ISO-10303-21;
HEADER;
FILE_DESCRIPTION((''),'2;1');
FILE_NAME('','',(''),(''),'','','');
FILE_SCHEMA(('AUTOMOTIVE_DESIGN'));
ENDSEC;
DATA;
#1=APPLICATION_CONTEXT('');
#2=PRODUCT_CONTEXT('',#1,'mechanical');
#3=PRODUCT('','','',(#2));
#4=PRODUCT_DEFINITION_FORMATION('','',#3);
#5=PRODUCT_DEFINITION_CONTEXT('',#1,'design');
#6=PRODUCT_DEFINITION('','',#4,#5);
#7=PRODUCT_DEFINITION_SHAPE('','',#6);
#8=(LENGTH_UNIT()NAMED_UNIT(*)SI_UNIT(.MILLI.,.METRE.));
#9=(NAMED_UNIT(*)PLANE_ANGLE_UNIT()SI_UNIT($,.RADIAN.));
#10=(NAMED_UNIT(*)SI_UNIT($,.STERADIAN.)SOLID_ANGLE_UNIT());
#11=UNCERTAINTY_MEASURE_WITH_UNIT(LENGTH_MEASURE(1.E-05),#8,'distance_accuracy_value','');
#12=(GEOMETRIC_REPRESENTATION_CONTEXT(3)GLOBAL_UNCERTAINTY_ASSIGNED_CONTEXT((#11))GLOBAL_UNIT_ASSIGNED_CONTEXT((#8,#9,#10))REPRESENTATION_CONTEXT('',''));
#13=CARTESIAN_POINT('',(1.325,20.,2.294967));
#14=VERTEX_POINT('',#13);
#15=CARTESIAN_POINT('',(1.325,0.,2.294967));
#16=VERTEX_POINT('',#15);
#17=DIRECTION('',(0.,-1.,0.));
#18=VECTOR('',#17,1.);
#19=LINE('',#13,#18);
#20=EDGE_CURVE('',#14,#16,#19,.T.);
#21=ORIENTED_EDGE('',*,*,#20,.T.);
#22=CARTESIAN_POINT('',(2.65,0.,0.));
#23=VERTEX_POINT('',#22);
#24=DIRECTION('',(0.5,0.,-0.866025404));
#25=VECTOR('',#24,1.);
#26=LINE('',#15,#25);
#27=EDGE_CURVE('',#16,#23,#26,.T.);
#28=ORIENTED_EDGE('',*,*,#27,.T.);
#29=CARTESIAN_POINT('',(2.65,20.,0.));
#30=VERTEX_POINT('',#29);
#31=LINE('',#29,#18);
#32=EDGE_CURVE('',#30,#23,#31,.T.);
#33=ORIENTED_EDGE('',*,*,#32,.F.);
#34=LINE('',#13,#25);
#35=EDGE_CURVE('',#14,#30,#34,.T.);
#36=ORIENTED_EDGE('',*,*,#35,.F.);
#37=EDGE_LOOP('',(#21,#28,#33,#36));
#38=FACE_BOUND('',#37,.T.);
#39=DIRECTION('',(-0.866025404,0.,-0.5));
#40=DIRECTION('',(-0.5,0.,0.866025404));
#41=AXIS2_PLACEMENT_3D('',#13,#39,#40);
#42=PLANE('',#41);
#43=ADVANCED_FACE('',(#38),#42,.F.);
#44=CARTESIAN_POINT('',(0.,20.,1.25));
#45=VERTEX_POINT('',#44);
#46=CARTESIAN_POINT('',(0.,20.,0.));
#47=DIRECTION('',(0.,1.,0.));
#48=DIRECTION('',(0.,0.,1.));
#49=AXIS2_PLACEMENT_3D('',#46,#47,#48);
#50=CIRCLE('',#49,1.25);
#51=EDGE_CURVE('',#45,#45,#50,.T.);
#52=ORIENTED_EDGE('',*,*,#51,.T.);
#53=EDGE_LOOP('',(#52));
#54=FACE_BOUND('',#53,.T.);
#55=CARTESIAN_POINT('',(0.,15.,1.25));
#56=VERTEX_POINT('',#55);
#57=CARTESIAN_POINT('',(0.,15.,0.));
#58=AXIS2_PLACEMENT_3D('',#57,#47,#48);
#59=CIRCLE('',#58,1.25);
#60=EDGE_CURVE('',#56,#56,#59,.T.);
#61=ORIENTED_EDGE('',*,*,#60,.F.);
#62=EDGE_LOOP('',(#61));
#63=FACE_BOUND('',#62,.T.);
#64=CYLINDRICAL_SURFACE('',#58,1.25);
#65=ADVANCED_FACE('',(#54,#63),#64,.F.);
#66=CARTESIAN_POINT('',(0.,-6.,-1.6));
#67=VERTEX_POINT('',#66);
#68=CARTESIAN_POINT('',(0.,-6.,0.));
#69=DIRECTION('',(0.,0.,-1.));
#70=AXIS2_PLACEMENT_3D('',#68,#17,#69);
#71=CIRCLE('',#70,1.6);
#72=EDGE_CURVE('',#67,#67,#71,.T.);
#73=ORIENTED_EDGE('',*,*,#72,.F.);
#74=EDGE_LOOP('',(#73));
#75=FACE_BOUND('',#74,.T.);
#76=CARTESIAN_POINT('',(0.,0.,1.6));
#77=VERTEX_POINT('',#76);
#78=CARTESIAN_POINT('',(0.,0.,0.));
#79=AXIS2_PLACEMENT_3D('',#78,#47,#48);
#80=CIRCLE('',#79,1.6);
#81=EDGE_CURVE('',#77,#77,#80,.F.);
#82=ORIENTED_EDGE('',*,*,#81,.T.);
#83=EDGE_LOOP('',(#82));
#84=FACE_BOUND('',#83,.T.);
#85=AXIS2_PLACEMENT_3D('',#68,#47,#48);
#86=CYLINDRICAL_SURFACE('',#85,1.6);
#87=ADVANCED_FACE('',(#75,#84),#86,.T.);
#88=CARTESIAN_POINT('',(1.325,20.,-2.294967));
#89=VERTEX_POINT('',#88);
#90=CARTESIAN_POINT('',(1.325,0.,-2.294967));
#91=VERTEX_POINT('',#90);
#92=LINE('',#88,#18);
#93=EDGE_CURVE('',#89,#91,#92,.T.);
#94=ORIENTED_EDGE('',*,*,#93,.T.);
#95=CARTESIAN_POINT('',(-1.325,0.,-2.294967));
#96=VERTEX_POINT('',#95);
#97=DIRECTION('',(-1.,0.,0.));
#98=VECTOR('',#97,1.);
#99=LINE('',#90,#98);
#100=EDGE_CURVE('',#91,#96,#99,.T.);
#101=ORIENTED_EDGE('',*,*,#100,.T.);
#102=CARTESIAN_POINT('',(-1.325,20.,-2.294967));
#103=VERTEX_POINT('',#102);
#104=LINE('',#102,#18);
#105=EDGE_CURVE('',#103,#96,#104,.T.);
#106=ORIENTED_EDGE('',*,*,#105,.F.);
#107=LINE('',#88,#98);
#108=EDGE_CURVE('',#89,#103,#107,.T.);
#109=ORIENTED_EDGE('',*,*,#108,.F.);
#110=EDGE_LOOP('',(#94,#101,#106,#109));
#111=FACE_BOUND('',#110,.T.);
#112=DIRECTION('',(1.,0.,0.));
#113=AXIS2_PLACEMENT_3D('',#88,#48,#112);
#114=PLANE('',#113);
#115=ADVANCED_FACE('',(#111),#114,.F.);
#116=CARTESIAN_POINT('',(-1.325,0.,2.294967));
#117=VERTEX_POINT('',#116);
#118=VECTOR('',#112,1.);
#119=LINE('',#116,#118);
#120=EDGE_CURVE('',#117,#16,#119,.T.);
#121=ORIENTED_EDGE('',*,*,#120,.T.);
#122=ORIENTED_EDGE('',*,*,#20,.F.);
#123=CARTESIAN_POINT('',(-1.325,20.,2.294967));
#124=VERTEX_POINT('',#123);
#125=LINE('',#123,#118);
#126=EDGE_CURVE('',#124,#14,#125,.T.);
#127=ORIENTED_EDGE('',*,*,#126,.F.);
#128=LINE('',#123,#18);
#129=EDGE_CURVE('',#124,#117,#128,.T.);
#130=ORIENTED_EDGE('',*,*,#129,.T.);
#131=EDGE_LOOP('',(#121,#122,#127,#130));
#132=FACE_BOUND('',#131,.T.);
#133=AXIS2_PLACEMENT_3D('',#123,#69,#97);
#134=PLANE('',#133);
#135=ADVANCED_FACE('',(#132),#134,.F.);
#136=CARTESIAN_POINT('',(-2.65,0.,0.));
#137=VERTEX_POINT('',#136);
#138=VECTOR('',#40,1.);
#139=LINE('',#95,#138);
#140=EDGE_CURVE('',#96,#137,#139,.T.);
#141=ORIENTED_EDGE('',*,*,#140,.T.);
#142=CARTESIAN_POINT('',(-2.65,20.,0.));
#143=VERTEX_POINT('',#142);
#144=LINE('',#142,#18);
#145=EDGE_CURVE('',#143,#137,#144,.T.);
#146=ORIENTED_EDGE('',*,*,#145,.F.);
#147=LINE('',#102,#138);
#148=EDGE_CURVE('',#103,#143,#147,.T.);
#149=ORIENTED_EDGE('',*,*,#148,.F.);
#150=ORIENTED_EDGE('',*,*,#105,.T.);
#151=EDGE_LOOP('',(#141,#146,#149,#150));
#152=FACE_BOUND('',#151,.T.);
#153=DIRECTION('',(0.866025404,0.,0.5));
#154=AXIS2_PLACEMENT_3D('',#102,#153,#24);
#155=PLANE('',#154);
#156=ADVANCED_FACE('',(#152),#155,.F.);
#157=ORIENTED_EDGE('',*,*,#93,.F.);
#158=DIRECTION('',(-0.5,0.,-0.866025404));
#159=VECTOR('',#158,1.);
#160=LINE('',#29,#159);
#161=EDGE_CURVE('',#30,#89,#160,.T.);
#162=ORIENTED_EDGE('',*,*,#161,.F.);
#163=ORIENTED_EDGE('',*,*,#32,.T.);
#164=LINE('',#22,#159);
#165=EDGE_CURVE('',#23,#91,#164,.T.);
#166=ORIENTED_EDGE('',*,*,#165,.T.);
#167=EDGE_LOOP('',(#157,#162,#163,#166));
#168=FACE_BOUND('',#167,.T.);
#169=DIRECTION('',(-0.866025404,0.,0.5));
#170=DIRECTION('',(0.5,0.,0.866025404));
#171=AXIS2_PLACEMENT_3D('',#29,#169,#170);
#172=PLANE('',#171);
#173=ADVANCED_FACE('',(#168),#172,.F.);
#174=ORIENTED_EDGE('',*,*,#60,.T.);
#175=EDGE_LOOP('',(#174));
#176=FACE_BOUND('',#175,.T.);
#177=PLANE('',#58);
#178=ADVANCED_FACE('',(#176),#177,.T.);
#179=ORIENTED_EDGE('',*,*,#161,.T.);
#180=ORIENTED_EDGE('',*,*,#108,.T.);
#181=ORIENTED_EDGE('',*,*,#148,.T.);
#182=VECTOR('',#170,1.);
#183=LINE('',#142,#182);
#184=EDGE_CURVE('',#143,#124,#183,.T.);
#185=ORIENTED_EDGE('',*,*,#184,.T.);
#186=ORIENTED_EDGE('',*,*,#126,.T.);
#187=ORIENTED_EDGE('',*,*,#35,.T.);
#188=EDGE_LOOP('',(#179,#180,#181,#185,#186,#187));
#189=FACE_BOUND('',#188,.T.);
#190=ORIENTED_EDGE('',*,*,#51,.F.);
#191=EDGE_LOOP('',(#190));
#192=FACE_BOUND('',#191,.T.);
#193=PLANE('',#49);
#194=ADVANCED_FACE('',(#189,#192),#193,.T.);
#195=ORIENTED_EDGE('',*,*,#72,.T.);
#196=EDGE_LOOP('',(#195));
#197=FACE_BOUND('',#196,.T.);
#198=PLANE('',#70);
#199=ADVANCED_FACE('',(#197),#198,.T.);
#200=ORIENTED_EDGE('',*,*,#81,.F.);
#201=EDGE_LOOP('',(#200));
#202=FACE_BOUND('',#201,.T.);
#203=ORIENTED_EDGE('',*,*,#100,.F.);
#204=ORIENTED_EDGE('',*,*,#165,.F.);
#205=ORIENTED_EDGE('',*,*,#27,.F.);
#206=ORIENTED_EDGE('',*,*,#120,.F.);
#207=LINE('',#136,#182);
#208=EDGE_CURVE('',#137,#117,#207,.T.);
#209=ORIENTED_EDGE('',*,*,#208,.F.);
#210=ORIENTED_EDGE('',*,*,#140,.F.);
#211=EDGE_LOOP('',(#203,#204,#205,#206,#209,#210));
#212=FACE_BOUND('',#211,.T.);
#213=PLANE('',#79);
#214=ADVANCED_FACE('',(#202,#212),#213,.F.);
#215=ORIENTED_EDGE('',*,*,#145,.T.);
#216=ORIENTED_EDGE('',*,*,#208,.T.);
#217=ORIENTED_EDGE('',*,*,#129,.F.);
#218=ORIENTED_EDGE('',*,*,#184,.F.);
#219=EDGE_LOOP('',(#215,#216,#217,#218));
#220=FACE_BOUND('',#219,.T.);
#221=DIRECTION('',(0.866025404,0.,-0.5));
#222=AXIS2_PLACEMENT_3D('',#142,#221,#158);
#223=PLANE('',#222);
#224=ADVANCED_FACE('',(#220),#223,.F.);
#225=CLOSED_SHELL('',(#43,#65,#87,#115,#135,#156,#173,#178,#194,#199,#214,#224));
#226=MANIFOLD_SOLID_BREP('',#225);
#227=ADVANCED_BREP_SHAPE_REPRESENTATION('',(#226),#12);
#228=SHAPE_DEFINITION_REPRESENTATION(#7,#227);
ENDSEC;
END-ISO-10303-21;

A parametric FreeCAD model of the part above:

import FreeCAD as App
import Part
import Sketcher
Q = App.Units.Quantity

doc = App.newDocument("Part")
params = doc.addObject("Spreadsheet::Sheet", "Params")
for row, (alias, value) in enumerate([
    ("sketch1_width", "2.65 mm"),
    ("pad1_length", "20 mm"),
    ("sketch2_diameter", "3.2 mm"),
    ("pad2_length", "6 mm"),
    ("sketch3_diameter", "2.5 mm"),
    ("pocket1_length", "5 mm"),
], start=1):
    params.set(f"A{row}", alias)
    params.set(f"B{row}", "=" + value)
    params.setAlias(f"B{row}", alias)

body = doc.addObject("PartDesign::Body", "Body")

# Sketch on XZ plane
sketch1 = body.newObject("Sketcher::SketchObject", "Sketch")
sketch1.AttachmentSupport = (doc.getObject("XZ_Plane"), [""])
sketch1.MapMode = "FlatFace"
sketch1.addGeometry(Part.LineSegment(App.Vector(1.3, 2.3, 0), App.Vector(2.6, 0, 0)), False)
sketch1.addGeometry(Part.LineSegment(App.Vector(2.6, 0, 0), App.Vector(1.3, -2.3, 0)), False)
sketch1.addGeometry(Part.LineSegment(App.Vector(1.3, -2.3, 0), App.Vector(-1.3, -2.3, 0)), False)
sketch1.addGeometry(Part.LineSegment(App.Vector(-1.3, -2.3, 0), App.Vector(-2.6, 0, 0)), False)
sketch1.addGeometry(Part.LineSegment(App.Vector(-2.6, 0, 0), App.Vector(-1.3, 2.3, 0)), False)
sketch1.addGeometry(Part.LineSegment(App.Vector(-1.3, 2.3, 0), App.Vector(1.3, 2.3, 0)), False)
sketch1.addConstraint(Sketcher.Constraint("Coincident", 0, 2, 1, 1))
sketch1.addConstraint(Sketcher.Constraint("Coincident", 1, 2, 2, 1))
sketch1.addConstraint(Sketcher.Constraint("Coincident", 2, 2, 3, 1))
sketch1.addConstraint(Sketcher.Constraint("Coincident", 3, 2, 4, 1))
sketch1.addConstraint(Sketcher.Constraint("Coincident", 4, 2, 5, 1))
sketch1.addConstraint(Sketcher.Constraint("Coincident", 5, 2, 0, 1))
sketch1.addConstraint(Sketcher.Constraint("Horizontal", 2))
sketch1.addConstraint(Sketcher.Constraint("Horizontal", 5))
sketch1.addConstraint(Sketcher.Constraint("Symmetric", 0, 2, 3, 2, -1, 1))
sketch1.addConstraint(Sketcher.Constraint("Symmetric", 1, 2, 4, 2, -1, 1))
sketch1.addConstraint(Sketcher.Constraint("PointOnObject", 0, 2, -1))
sketch1.addConstraint(Sketcher.Constraint("Parallel", 0, 3))
sketch1.addConstraint(Sketcher.Constraint("Vertical", 2, 2, 4, 2))
sketch1.addConstraint(Sketcher.Constraint("Angle", 0, Q("-60 deg")))
sketch1.addConstraint(Sketcher.Constraint("DistanceX", 2, 2, 2, 1, Q("2.65 mm")))
sketch1.addConstraint(Sketcher.Constraint("DistanceX", 3, 2, 0, 2, Q("5.3 mm")))
sketch1.setExpression("Constraints[14]", "Params.sketch1_width")
pad1 = body.newObject("PartDesign::Pad", "Pad")
pad1.Profile = sketch1
pad1.setExpression("Length", "Params.pad1_length")
pad1.Reversed = True

# Sketch on XZ plane
sketch2 = body.newObject("Sketcher::SketchObject", "Sketch001")
sketch2.AttachmentSupport = (doc.getObject("XZ_Plane"), [""])
sketch2.MapMode = "FlatFace"
sketch2.addGeometry(Part.Circle(App.Vector(0, 0, 0), App.Vector(0, 0, 1), 1.6), False)
sketch2.addConstraint(Sketcher.Constraint("Coincident", 0, 3, -1, 1))
sketch2.addConstraint(Sketcher.Constraint("Diameter", 0, Q("3.2 mm")))
sketch2.setExpression("Constraints[1]", "Params.sketch2_diameter")
pad2 = body.newObject("PartDesign::Pad", "Pad001")
pad2.Profile = sketch2
pad2.setExpression("Length", "Params.pad2_length")

# Sketch on XZ plane
sketch3 = body.newObject("Sketcher::SketchObject", "Sketch002")
sketch3.AttachmentSupport = (doc.getObject("XZ_Plane"), [""])
sketch3.MapMode = "FlatFace"
sketch3.AttachmentOffset = App.Placement(App.Vector(0, 0, -20), App.Rotation())
sketch3.addGeometry(Part.Circle(App.Vector(0, 0, 0), App.Vector(0, 0, 1), 1.2), False)
sketch3.addConstraint(Sketcher.Constraint("Coincident", 0, 3, -1, 1))
sketch3.addConstraint(Sketcher.Constraint("Diameter", 0, Q("2.5 mm")))
sketch3.setExpression("Constraints[1]", "Params.sketch3_diameter")
pocket1 = body.newObject("PartDesign::Pocket", "Pocket")
pocket1.Profile = sketch3
pocket1.setExpression("Length", "Params.pocket1_length")
pocket1.Reversed = True

doc.recompute()
